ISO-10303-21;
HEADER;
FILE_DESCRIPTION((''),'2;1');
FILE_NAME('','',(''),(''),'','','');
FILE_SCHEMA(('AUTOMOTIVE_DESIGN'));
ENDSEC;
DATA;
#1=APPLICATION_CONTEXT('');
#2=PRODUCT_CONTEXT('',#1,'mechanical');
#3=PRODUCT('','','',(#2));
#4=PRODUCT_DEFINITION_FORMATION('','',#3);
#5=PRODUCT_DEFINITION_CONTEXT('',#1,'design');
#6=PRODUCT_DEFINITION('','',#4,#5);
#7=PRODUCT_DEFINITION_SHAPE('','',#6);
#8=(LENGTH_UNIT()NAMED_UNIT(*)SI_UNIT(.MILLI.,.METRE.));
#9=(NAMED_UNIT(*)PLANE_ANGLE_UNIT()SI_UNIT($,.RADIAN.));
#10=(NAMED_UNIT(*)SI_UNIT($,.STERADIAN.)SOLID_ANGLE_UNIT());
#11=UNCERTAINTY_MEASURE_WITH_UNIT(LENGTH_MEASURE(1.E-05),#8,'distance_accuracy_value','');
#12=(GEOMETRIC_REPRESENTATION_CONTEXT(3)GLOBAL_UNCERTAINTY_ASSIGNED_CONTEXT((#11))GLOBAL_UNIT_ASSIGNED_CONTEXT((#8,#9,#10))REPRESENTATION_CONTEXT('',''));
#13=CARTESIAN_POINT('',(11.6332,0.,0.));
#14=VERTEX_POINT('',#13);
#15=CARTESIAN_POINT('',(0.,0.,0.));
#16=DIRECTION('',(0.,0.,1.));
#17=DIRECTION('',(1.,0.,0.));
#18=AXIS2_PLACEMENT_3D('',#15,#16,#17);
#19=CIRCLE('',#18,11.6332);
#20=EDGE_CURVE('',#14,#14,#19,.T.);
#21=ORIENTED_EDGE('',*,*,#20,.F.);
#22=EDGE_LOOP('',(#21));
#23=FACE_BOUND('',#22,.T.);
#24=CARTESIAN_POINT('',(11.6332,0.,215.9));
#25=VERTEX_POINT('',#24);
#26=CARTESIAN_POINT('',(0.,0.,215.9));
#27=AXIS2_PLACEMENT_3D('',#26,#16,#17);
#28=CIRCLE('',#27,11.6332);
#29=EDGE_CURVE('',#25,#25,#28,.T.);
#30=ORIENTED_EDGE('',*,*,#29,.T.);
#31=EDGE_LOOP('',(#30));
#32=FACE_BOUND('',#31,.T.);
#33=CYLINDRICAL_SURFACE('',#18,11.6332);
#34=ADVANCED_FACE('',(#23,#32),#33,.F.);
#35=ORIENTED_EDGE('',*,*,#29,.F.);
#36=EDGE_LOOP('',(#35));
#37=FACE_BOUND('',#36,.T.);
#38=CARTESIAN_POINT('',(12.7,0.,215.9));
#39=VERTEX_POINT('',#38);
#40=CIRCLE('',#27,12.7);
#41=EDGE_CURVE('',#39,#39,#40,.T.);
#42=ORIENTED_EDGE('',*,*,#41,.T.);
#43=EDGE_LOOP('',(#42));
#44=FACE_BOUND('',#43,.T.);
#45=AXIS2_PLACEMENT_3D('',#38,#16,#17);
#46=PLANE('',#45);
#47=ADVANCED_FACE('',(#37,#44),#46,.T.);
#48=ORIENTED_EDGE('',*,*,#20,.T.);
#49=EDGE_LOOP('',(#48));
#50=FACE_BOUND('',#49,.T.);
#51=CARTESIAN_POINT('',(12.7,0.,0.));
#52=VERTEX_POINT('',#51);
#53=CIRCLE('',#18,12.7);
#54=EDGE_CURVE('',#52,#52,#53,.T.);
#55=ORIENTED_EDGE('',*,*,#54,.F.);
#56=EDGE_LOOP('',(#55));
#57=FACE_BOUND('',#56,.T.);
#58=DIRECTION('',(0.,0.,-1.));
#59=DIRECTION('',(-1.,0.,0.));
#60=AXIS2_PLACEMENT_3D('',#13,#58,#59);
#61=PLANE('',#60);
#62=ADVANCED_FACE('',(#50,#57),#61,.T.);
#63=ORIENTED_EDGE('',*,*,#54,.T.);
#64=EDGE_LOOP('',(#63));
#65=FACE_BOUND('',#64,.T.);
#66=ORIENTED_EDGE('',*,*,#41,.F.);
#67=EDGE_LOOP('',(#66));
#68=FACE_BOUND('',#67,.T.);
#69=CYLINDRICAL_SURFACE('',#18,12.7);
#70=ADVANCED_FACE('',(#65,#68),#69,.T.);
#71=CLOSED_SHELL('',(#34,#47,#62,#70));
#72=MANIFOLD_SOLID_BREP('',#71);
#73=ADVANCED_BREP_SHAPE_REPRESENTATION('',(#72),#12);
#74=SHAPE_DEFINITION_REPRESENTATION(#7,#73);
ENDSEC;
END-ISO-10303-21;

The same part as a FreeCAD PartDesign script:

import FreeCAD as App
import Part
import Sketcher
Q = App.Units.Quantity


def add_polygon(sketch, points):
    """Adds a closed chain of lines whose ends are joined by coincident constraints."""
    first, n = sketch.GeometryCount, len(points)
    for a, b in zip(points, points[1:] + points[:1]):
        sketch.addGeometry(Part.LineSegment(App.Vector(*a, 0), App.Vector(*b, 0)), False)
    for i in range(n):
        sketch.addConstraint(Sketcher.Constraint("Coincident", first + i, 2, first + (i + 1) % n, 1))

doc = App.newDocument("Part")
body = doc.addObject("PartDesign::Body", "Body")

# Sketch on XZ plane
sketch1 = doc.addObject("Sketcher::SketchObject", "Sketch")
body.addObject(sketch1)
sketch1.AttachmentSupport = (doc.XZ_Plane, [""])
sketch1.MapMode = "FlatFace"
add_polygon(sketch1, [(11.6332, 0), (11.6332, 215.9), (12.7, 215.9), (12.7, 0)])  # lines 0-3
sketch1.addConstraint([
    Sketcher.Constraint("Vertical", 0),
    Sketcher.Constraint("Horizontal", 1),
    Sketcher.Constraint("Vertical", 2),
    Sketcher.Constraint("Horizontal", 3),
    Sketcher.Constraint("PointOnObject", 2, 2, -1),
    Sketcher.Constraint("DistanceY", 0, 1, 0, 2, Q("8.5 in")),
    Sketcher.Constraint("DistanceX", -1, 1, 1, 2, Q("0.5 in")),
    Sketcher.Constraint("DistanceX", 1, 1, 1, 2, Q("0.042 in")),
])
revolution = doc.addObject("PartDesign::Revolution", "Revolution")
body.addObject(revolution)
revolution.Profile = sketch1
revolution.ReferenceAxis = (sketch1, ["V_Axis"])
revolution.Angle = 360

doc.recompute()
